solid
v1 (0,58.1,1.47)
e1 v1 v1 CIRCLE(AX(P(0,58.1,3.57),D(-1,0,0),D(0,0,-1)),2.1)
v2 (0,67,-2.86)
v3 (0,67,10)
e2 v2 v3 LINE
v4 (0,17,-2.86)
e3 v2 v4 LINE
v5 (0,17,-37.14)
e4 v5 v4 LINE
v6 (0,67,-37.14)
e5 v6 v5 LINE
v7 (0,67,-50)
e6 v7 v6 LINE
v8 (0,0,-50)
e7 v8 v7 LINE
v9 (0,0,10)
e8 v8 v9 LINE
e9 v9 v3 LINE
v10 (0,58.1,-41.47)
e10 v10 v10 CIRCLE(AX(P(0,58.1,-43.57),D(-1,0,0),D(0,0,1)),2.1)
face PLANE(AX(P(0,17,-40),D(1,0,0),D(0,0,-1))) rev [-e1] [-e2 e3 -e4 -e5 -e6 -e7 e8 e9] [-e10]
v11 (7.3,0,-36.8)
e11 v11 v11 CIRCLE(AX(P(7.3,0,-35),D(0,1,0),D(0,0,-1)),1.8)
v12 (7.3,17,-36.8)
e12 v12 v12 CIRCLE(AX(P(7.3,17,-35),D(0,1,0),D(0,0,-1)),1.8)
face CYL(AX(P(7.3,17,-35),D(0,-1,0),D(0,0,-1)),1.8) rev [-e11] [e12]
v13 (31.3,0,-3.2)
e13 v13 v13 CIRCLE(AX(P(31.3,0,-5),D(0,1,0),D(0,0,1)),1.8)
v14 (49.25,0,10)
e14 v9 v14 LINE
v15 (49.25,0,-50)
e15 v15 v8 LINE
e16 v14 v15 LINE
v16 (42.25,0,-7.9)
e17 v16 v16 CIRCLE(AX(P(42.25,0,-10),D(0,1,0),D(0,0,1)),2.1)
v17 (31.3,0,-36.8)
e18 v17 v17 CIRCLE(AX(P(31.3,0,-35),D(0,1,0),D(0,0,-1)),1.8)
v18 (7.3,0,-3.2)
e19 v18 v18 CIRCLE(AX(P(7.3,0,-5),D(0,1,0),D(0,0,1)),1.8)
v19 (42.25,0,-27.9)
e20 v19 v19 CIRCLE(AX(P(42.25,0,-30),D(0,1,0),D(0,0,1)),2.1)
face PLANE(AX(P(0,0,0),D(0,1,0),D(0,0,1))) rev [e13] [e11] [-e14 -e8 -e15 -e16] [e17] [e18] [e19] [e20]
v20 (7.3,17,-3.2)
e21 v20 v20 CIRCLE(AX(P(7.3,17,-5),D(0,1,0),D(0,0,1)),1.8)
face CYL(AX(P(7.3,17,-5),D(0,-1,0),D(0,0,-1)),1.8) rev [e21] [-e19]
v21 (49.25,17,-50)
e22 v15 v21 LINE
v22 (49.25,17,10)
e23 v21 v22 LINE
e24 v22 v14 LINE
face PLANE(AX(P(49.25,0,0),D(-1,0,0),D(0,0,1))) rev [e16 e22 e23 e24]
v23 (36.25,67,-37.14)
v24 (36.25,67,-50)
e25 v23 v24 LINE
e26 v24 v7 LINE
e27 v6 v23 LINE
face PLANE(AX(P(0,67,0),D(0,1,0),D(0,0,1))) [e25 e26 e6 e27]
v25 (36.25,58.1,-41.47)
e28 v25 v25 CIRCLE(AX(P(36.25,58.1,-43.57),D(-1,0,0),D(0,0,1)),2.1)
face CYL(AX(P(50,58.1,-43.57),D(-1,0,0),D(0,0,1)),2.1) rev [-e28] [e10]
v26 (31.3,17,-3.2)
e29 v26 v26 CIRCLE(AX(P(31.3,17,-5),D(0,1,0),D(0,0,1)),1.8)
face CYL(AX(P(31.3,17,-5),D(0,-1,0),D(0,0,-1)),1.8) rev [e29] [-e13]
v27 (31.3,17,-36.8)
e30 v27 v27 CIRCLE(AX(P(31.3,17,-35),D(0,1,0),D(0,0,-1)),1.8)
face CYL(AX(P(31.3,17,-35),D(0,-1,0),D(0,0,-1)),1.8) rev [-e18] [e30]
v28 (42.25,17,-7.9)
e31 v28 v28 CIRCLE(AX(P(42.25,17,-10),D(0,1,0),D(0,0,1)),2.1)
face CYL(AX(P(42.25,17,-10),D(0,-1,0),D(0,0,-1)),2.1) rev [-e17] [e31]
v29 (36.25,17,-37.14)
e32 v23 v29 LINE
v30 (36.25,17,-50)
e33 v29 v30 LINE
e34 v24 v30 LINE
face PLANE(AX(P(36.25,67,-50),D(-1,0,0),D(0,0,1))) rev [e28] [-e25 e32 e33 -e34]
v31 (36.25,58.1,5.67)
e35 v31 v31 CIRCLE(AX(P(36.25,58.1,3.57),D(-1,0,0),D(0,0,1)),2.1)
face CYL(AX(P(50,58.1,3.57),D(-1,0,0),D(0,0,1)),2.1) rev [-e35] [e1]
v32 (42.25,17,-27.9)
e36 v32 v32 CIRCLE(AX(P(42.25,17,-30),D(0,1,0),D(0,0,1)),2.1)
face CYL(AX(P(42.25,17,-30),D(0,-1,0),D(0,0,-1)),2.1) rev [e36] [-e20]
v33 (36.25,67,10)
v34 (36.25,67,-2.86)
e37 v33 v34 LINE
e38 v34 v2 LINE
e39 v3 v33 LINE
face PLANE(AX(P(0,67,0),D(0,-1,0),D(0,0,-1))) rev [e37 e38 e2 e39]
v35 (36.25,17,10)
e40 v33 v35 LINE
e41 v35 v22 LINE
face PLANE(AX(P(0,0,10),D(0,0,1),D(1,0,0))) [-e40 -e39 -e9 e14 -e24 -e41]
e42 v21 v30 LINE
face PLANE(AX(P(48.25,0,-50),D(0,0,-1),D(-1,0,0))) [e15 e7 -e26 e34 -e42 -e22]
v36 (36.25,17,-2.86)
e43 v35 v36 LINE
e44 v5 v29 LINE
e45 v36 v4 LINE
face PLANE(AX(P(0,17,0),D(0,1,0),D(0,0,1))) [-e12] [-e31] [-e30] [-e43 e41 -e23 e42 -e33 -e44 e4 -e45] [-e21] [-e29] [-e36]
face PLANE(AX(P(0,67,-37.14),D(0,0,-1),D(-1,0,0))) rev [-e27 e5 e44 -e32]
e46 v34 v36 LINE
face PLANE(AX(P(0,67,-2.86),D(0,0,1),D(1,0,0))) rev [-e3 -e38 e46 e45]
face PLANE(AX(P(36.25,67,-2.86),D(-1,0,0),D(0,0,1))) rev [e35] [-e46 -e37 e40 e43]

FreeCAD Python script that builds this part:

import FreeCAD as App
import Part
import Sketcher
from FreeCAD import Vector


def add_polygon(sketch, points):
    """Adds a closed chain of lines whose ends are joined by coincident constraints."""
    first, n = sketch.GeometryCount, len(points)
    for a, b in zip(points, points[1:] + points[:1]):
        sketch.addGeometry(Part.LineSegment(App.Vector(*a, 0), App.Vector(*b, 0)), False)
    for i in range(n):
        sketch.addConstraint(Sketcher.Constraint("Coincident", first + i, 2, first + (i + 1) % n, 1))

doc = App.newDocument("Part")
params = doc.addObject("Spreadsheet::Sheet", "Params")
for row, (alias, value) in enumerate([
    ("sketch1_diameter", "3.6 mm"),
    ("sketch1_diameter2", "4.2 mm"),
    ("sketch1_height", "40 mm"),
    ("sketch1_width", "48.25 mm"),
    ("pad1_length", "17 mm"),
    ("sketch2_height", "10 mm"),
    ("sketch2_width", "48.25 mm"),
    ("pad2_length", "17 mm"),
    ("sketch3_width", "36.25 mm"),
    ("sketch3_height", "12.86 mm"),
    ("pad3_length", "50 mm"),
    ("sketch4_diameter", "4.2 mm"),
    ("pocket1_length", "50 mm"),
    ("sketch5_width", "17 mm"),
    ("sketch5_height", "60 mm"),
    ("pad4_length", "1 mm"),
], start=1):
    params.set(f"A{row}", alias)
    params.set(f"B{row}", "=" + value)
    params.setAlias(f"B{row}", alias)

body = doc.addObject("PartDesign::Body", "Body")

# Sketch on XZ plane
sketch1 = body.newObject("Sketcher::SketchObject", "Sketch")
sketch1.AttachmentSupport = (doc.getObject("XZ_Plane"), [""])
sketch1.MapMode = "FlatFace"
add_polygon(sketch1, [(0, 0), (48.25, 0), (48.25, -40), (0, -40)])  # lines 0-3
sketch1.addGeometry(Part.Circle(Vector(7.3, -5, 0), Vector(0, 0, 1), 1.8), False)  # 4
sketch1.addGeometry(Part.Circle(Vector(31.3, -5, 0), Vector(0, 0, 1), 1.8), False)  # 5
sketch1.addGeometry(Part.Circle(Vector(42.25, -10, 0), Vector(0, 0, 1), 2.1), False)  # 6
sketch1.addGeometry(Part.Circle(Vector(7.3, -35, 0), Vector(0, 0, 1), 1.8), False)  # 7
sketch1.addGeometry(Part.Circle(Vector(31.3, -35, 0), Vector(0, 0, 1), 1.8), False)  # 8
sketch1.addGeometry(Part.Circle(Vector(42.25, -30, 0), Vector(0, 0, 1), 2.1), False)  # 9
sketch1.addConstraint(Sketcher.Constraint("Horizontal", 0))
sketch1.addConstraint(Sketcher.Constraint("Vertical", 1))
sketch1.addConstraint(Sketcher.Constraint("Horizontal", 2))
sketch1.addConstraint(Sketcher.Constraint("Vertical", 3))
sketch1.addConstraint(Sketcher.Constraint("Coincident", 3, 2, -1, 1))
sketch1.addConstraint(Sketcher.Constraint("Equal", 4, 5))
sketch1.addConstraint(Sketcher.Constraint("Equal", 5, 7))
sketch1.addConstraint(Sketcher.Constraint("Equal", 7, 8))
sketch1.addConstraint(Sketcher.Constraint("Equal", 6, 9))
sketch1.addConstraint(Sketcher.Constraint("Horizontal", 4, 3, 5, 3))
sketch1.addConstraint(Sketcher.Constraint("Horizontal", 7, 3, 8, 3))
sketch1.addConstraint(Sketcher.Constraint("Vertical", 4, 3, 7, 3))
sketch1.addConstraint(Sketcher.Constraint("Vertical", 5, 3, 8, 3))
sketch1.addConstraint(Sketcher.Constraint("Vertical", 6, 3, 9, 3))
sketch1.addConstraint(Sketcher.Constraint("Diameter", 4, 3.6))
sketch1.addConstraint(Sketcher.Constraint("Diameter", 6, 4.2))
sketch1.addConstraint(Sketcher.Constraint("DistanceY", 1, 2, 1, 1, 40.0))
sketch1.addConstraint(Sketcher.Constraint("DistanceY", 4, 3, -1, 1, 5.0))
sketch1.addConstraint(Sketcher.Constraint("DistanceY", 6, 3, -1, 1, 10.0))
sketch1.addConstraint(Sketcher.Constraint("DistanceY", 7, 3, -1, 1, 35.0))
sketch1.addConstraint(Sketcher.Constraint("DistanceY", 9, 3, -1, 1, 30.0))
sketch1.addConstraint(Sketcher.Constraint("DistanceX", 4, 3, 5, 3, 24.0))
sketch1.addConstraint(Sketcher.Constraint("DistanceX", 6, 3, 0, 2, 6.0))
sketch1.addConstraint(Sketcher.Constraint("DistanceX", 0, 1, 0, 2, 48.25))
sketch1.addConstraint(Sketcher.Constraint("DistanceX", -1, 1, 4, 3, 7.3))
sketch1.setExpression("Constraints[18]", "Params.sketch1_diameter")
sketch1.setExpression("Constraints[19]", "Params.sketch1_diameter2")
sketch1.setExpression("Constraints[20]", "Params.sketch1_height")
sketch1.setExpression("Constraints[27]", "Params.sketch1_width")
pad1 = body.newObject("PartDesign::Pad", "Pad")
pad1.Profile = sketch1
pad1.setExpression("Length", "Params.pad1_length")
pad1.Reversed = True

# Sketch on XZ plane
sketch2 = body.newObject("Sketcher::SketchObject", "Sketch001")
sketch2.AttachmentSupport = (doc.getObject("XZ_Plane"), [""])
sketch2.MapMode = "FlatFace"
sketch2.AttachmentOffset = App.Placement(Vector(0, 0, -17), App.Rotation())
add_polygon(sketch2, [(0, -50), (0, -40), (48.25, -40), (48.25, -50)])  # lines 0-3
add_polygon(sketch2, [(0, 0), (0, 10), (48.25, 10), (48.25, 0)])  # lines 4-7
sketch2.addConstraint(Sketcher.Constraint("Vertical", 0))
sketch2.addConstraint(Sketcher.Constraint("Horizontal", 1))
sketch2.addConstraint(Sketcher.Constraint("Vertical", 2))
sketch2.addConstraint(Sketcher.Constraint("Horizontal", 3))
sketch2.addConstraint(Sketcher.Constraint("Vertical", 4))
sketch2.addConstraint(Sketcher.Constraint("Horizontal", 5))
sketch2.addConstraint(Sketcher.Constraint("Vertical", 6))
sketch2.addConstraint(Sketcher.Constraint("Horizontal", 7))
sketch2.addConstraint(Sketcher.Constraint("Coincident", 7, 2, -1, 1))
sketch2.addConstraint(Sketcher.Constraint("PointOnObject", 0, 2, -2))
sketch2.addConstraint(Sketcher.Constraint("Vertical", 2, 2, 5, 2))
sketch2.addConstraint(Sketcher.Constraint("Equal", 2, 4))
sketch2.addConstraint(Sketcher.Constraint("DistanceY", 0, 1, 0, 2, 10.0))
sketch2.addConstraint(Sketcher.Constraint("DistanceY", 0, 2, -1, 1, 40.0))
sketch2.addConstraint(Sketcher.Constraint("DistanceX", 1, 1, 1, 2, 48.25))
sketch2.setExpression("Constraints[20]", "Params.sketch2_height")
sketch2.setExpression("Constraints[22]", "Params.sketch2_width")
pad2 = body.newObject("PartDesign::Pad", "Pad001")
pad2.Profile = sketch2
pad2.setExpression("Length", "Params.pad2_length")

# Sketch on XZ plane
sketch3 = body.newObject("Sketcher::SketchObject", "Sketch002")
sketch3.AttachmentSupport = (doc.getObject("XZ_Plane"), [""])
sketch3.MapMode = "FlatFace"
sketch3.AttachmentOffset = App.Placement(Vector(0, 0, -17), App.Rotation())
add_polygon(sketch3, [(0, -50), (0, -37.14), (36.25, -37.14), (36.25, -50)])  # lines 0-3
add_polygon(sketch3, [(0, -2.86), (0, 10), (36.25, 10), (36.25, -2.86)])  # lines 4-7
sketch3.addConstraint(Sketcher.Constraint("Vertical", 0))
sketch3.addConstraint(Sketcher.Constraint("Horizontal", 1))
sketch3.addConstraint(Sketcher.Constraint("Vertical", 2))
sketch3.addConstraint(Sketcher.Constraint("Horizontal", 3))
sketch3.addConstraint(Sketcher.Constraint("Vertical", 4))
sketch3.addConstraint(Sketcher.Constraint("Horizontal", 5))
sketch3.addConstraint(Sketcher.Constraint("Vertical", 6))
sketch3.addConstraint(Sketcher.Constraint("Horizontal", 7))
sketch3.addConstraint(Sketcher.Constraint("PointOnObject", 0, 2, -2))
sketch3.addConstraint(Sketcher.Constraint("PointOnObject", 4, 2, -2))
sketch3.addConstraint(Sketcher.Constraint("Vertical", 2, 2, 5, 2))
sketch3.addConstraint(Sketcher.Constraint("Equal", 2, 4))
sketch3.addConstraint(Sketcher.Constraint("DistanceY", 2, 2, -1, 1, 50.0))
sketch3.addConstraint(Sketcher.Constraint("DistanceY", -1, 1, 4, 2, 10.0))
sketch3.addConstraint(Sketcher.Constraint("DistanceX", 1, 1, 1, 2, 36.25))
sketch3.addConstraint(Sketcher.Constraint("DistanceY", 0, 1, 0, 2, 12.86))
sketch3.setExpression("Constraints[22]", "Params.sketch3_width")
sketch3.setExpression("Constraints[23]", "Params.sketch3_height")
pad3 = body.newObject("PartDesign::Pad", "Pad002")
pad3.Profile = sketch3
pad3.setExpression("Length", "Params.pad3_length")
pad3.Reversed = True

# Sketch on YZ plane
sketch4 = body.newObject("Sketcher::SketchObject", "Sketch003")
sketch4.AttachmentSupport = (doc.getObject("YZ_Plane"), [""])
sketch4.MapMode = "FlatFace"
sketch4.addGeometry(Part.Circle(Vector(58.1, -43.57, 0), Vector(0, 0, 1), 2.1), False)
sketch4.addGeometry(Part.Circle(Vector(58.1, 3.57, 0), Vector(0, 0, 1), 2.1), False)
sketch4.addConstraint(Sketcher.Constraint("Equal", 0, 1))
sketch4.addConstraint(Sketcher.Constraint("Vertical", 0, 3, 1, 3))
sketch4.addConstraint(Sketcher.Constraint("Diameter", 0, 4.2))
sketch4.addConstraint(Sketcher.Constraint("DistanceX", -1, 1, 0, 3, 58.1))
sketch4.addConstraint(Sketcher.Constraint("DistanceY", 0, 3, -1, 1, 43.57))
sketch4.addConstraint(Sketcher.Constraint("DistanceY", -1, 1, 1, 3, 3.57))
sketch4.setExpression("Constraints[2]", "Params.sketch4_diameter")
pocket1 = body.newObject("PartDesign::Pocket", "Pocket")
pocket1.Profile = sketch4
pocket1.setExpression("Length", "Params.pocket1_length")
pocket1.Reversed = True

# Sketch on YZ plane
sketch5 = body.newObject("Sketcher::SketchObject", "Sketch004")
sketch5.AttachmentSupport = (doc.getObject("YZ_Plane"), [""])
sketch5.MapMode = "FlatFace"
sketch5.AttachmentOffset = App.Placement(Vector(0, 0, 48.25), App.Rotation())
add_polygon(sketch5, [(17, 10), (0, 10), (0, -50), (17, -50)])  # lines 0-3
sketch5.addConstraint(Sketcher.Constraint("Horizontal", 0))
sketch5.addConstraint(Sketcher.Constraint("Vertical", 1))
sketch5.addConstraint(Sketcher.Constraint("Horizontal", 2))
sketch5.addConstraint(Sketcher.Constraint("Vertical", 3))
sketch5.addConstraint(Sketcher.Constraint("PointOnObject", 0, 2, -2))
sketch5.addConstraint(Sketcher.Constraint("DistanceX", 0, 2, 0, 1, 17.0))
sketch5.addConstraint(Sketcher.Constraint("DistanceY", 1, 2, 1, 1, 60.0))
sketch5.addConstraint(Sketcher.Constraint("DistanceY", -1, 1, 0, 2, 10.0))
sketch5.setExpression("Constraints[9]", "Params.sketch5_width")
sketch5.setExpression("Constraints[10]", "Params.sketch5_height")
pad4 = body.newObject("PartDesign::Pad", "Pad003")
pad4.Profile = sketch5
pad4.setExpression("Length", "Params.pad4_length")

doc.recompute()
